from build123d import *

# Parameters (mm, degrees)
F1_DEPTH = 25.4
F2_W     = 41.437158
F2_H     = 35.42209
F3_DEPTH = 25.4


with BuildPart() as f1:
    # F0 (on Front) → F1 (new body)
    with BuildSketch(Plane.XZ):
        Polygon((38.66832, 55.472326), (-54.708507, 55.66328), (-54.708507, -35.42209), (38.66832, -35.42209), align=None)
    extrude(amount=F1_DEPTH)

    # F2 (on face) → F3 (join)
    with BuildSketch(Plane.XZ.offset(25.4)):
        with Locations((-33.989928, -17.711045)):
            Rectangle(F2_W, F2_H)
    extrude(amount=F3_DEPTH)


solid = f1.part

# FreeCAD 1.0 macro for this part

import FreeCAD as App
import Part
import Sketcher
from FreeCAD import Vector
Q = App.Units.Quantity


def add_polygon(sketch, points):
    """Adds a closed chain of lines whose ends are joined by coincident constraints."""
    first, n = sketch.GeometryCount, len(points)
    for a, b in zip(points, points[1:] + points[:1]):
        sketch.addGeometry(Part.LineSegment(App.Vector(*a, 0), App.Vector(*b, 0)), False)
    for i in range(n):
        sketch.addConstraint(Sketcher.Constraint("Coincident", first + i, 2, first + (i + 1) % n, 1))

doc = App.newDocument("Part")
body = doc.addObject("PartDesign::Body", "Body")

# Sketch on XZ plane
sketch1 = body.newObject("Sketcher::SketchObject", "Sketch")
sketch1.AttachmentSupport = (doc.getObject("XZ_Plane"), [""])
sketch1.MapMode = "FlatFace"
add_polygon(sketch1, [(39, 55), (-55, 56), (-55, -35), (39, -35)])  # lines 0-3
sketch1.addConstraint([
    Sketcher.Constraint("Vertical", 1),
    Sketcher.Constraint("Horizontal", 2),
    Sketcher.Constraint("Vertical", 3),
    Sketcher.Constraint("DistanceY", 1, 2, 1, 1, Q("91.08537 mm")),
    Sketcher.Constraint("DistanceX", 2, 1, 2, 2, Q("93.376827 mm")),
    Sketcher.Constraint("DistanceY", 3, 1, 3, 2, Q("90.894416 mm")),
    Sketcher.Constraint("DistanceY", -1, 1, 0, 2, Q("55.66328 mm")),
    Sketcher.Constraint("DistanceX", -1, 1, 2, 2, Q("38.66832 mm")),
])
pad1 = body.newObject("PartDesign::Pad", "Pad")
pad1.Profile = sketch1
pad1.Length = Q("1 in")

# Sketch on XZ plane
sketch2 = body.newObject("Sketcher::SketchObject", "Sketch001")
sketch2.AttachmentSupport = (doc.getObject("XZ_Plane"), [""])
sketch2.MapMode = "FlatFace"
sketch2.AttachmentOffset = App.Placement(Vector(0, 0, 1 * 25.4), App.Rotation())
add_polygon(sketch2, [(-55, 0), (-55, -35), (-13, -35), (-13, 0)])  # lines 0-3
sketch2.addConstraint([
    Sketcher.Constraint("Vertical", 0),
    Sketcher.Constraint("Horizontal", 1),
    Sketcher.Constraint("Vertical", 2),
    Sketcher.Constraint("Horizontal", 3),
    Sketcher.Constraint("PointOnObject", 2, 2, -1),
    Sketcher.Constraint("DistanceY", 0, 2, 0, 1, Q("35.42209 mm")),
    Sketcher.Constraint("DistanceX", 1, 1, 1, 2, Q("41.437158 mm")),
    Sketcher.Constraint("DistanceX", 1, 2, -1, 1, Q("13.271349 mm")),
])
pad2 = body.newObject("PartDesign::Pad", "Pad001")
pad2.Profile = sketch2
pad2.Length = Q("1 in")

doc.recompute()
